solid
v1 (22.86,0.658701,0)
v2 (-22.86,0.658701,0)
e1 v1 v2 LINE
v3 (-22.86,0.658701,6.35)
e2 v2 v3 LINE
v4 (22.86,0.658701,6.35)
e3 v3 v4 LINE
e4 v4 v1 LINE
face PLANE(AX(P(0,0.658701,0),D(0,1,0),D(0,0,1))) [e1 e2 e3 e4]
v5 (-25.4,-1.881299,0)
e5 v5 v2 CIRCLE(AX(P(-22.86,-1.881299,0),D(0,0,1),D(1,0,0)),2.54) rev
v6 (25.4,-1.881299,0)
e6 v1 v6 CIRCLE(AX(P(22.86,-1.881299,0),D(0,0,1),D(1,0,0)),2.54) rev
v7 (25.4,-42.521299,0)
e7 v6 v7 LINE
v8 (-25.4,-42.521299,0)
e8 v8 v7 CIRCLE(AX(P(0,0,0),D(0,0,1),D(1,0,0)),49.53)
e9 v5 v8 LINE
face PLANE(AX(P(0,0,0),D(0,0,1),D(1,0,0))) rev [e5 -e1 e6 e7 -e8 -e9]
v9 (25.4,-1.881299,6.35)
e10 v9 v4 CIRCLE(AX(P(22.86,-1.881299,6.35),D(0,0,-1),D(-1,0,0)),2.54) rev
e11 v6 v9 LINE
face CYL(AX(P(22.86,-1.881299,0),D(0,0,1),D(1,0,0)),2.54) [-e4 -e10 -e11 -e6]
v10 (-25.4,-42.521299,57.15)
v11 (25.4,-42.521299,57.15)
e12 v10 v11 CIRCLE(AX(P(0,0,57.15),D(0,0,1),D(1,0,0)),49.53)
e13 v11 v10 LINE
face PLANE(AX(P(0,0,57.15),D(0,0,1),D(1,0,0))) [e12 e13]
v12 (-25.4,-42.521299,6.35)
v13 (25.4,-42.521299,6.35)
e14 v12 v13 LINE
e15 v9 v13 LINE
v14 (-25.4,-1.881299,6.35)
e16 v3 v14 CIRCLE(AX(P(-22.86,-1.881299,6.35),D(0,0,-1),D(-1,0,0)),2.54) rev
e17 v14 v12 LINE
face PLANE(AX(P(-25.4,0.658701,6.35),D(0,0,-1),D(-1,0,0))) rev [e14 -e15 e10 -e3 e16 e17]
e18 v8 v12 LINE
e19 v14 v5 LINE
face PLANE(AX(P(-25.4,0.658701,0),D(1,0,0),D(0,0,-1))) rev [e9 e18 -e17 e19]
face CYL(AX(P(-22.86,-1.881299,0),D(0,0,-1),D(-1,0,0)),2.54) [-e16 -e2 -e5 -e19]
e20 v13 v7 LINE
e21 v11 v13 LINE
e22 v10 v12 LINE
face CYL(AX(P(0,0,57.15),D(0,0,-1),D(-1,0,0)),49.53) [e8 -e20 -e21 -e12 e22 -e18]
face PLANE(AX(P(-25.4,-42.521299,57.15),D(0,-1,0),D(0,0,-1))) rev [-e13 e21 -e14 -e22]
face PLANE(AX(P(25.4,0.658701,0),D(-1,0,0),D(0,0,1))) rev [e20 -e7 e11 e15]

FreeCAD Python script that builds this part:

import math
import FreeCAD as App
import Part
import Sketcher
from FreeCAD import Vector
Q = App.Units.Quantity


def edges_at(feature, points):
    """Names of the edges that pass closest to the given points."""
    edges = feature.Shape.Edges
    near = lambda p: min(range(len(edges)), key=lambda i: edges[i].distToShape(Part.Vertex(*p))[0])
    return sorted({f"Edge{near(p) + 1}" for p in points})


def add_polygon(sketch, points):
    """Adds a closed chain of lines whose ends are joined by coincident constraints."""
    first, n = sketch.GeometryCount, len(points)
    for a, b in zip(points, points[1:] + points[:1]):
        sketch.addGeometry(Part.LineSegment(App.Vector(*a, 0), App.Vector(*b, 0)), False)
    for i in range(n):
        sketch.addConstraint(Sketcher.Constraint("Coincident", first + i, 2, first + (i + 1) % n, 1))

doc = App.newDocument("Part")
body = doc.addObject("PartDesign::Body", "Body")

# Sketch on XY plane
sketch1 = body.newObject("Sketcher::SketchObject", "Sketch")
sketch1.AttachmentSupport = (doc.getObject("XY_Plane"), [""])
sketch1.MapMode = "FlatFace"
sketch1.addGeometry([
    Part.LineSegment(Vector(25, -43, 0), Vector(-25, -43, 0)),
    Part.ArcOfCircle(Part.Circle(Vector(0, 0, 0), Vector(0, 0, 1), 50), math.radians(-121), math.radians(-59)),
], False)
sketch1.addConstraint([
    Sketcher.Constraint("Coincident", 0, 1, 1, 2),
    Sketcher.Constraint("Coincident", 1, 1, 0, 2),
    Sketcher.Constraint("Horizontal", 0),
    Sketcher.Constraint("Coincident", 1, 3, -1, 1),
    Sketcher.Constraint("DistanceX", 0, 2, 0, 1, Q("2 in")),
    Sketcher.Constraint("Radius", 1, Q("1.95 in")),
])
pad1 = body.newObject("PartDesign::Pad", "Pad")
pad1.Profile = sketch1
pad1.Length = Q("2.25 in")

# Sketch on XZ plane
sketch2 = body.newObject("Sketcher::SketchObject", "Sketch001")
sketch2.AttachmentSupport = (doc.getObject("XZ_Plane"), [""])
sketch2.MapMode = "FlatFace"
sketch2.AttachmentOffset = App.Placement(Vector(0, 0, 42.521299), App.Rotation())
add_polygon(sketch2, [(-25, 0), (-25, 6), (25, 6), (25, 0)])  # lines 0-3
sketch2.addConstraint([
    Sketcher.Constraint("Vertical", 0),
    Sketcher.Constraint("Horizontal", 1),
    Sketcher.Constraint("Vertical", 2),
    Sketcher.Constraint("Horizontal", 3),
    Sketcher.Constraint("Symmetric", 2, 2, 3, 2, -1, 1),
    Sketcher.Constraint("DistanceX", 1, 1, 1, 2, Q("2 in")),
    Sketcher.Constraint("DistanceY", 0, 1, 0, 2, Q("0.25 in")),
])
pad2 = body.newObject("PartDesign::Pad", "Pad001")
pad2.Profile = sketch2
pad2.Length = Q("1.7 in")
pad2.Reversed = True
doc.recompute()

fillet = body.newObject("PartDesign::Fillet", "Fillet")
fillet.Base = (pad2, edges_at(pad2, [(-25.4, 0.659, 3.175), (25.4, 0.659, 3.175)]))
fillet.Radius = Q("0.1 in")

doc.recompute()
